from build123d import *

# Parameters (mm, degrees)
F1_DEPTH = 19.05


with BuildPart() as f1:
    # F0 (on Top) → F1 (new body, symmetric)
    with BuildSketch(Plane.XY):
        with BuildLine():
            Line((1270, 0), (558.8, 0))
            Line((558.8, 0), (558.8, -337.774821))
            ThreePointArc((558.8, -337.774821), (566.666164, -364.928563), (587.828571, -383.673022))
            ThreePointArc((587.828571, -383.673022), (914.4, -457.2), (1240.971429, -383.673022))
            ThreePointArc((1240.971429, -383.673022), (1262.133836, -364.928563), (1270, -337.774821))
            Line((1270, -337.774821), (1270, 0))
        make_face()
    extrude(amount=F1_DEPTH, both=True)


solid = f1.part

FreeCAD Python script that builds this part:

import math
import FreeCAD as App
import Part
import Sketcher

V = App.Vector
Q = App.Units.Quantity

doc = App.newDocument("Part")
body = doc.addObject("PartDesign::Body", "Body")

sketch1 = body.newObject("Sketcher::SketchObject", "Sketch")
sketch1.AttachmentSupport = (doc.getObject("XY_Plane"), [""])
sketch1.MapMode = "FlatFace"
sketch1.addGeometry([
    Part.LineSegment(V(1270, 0, 0), V(559, 0, 0)),
    Part.LineSegment(V(559, 0, 0), V(559, -338, 0)),
    Part.ArcOfCircle(Part.Circle(V(610, -338, 0), V(0, 0, 1), 51), math.radians(-180), math.radians(-115)),
    Part.ArcOfCircle(Part.Circle(V(914, 305, 0), V(0, 0, 1), 762), math.radians(-115), math.radians(-65)),
    Part.ArcOfCircle(Part.Circle(V(1219, -338, 0), V(0, 0, 1), 51), math.radians(-65), math.radians(0)),
    Part.LineSegment(V(1270, -338, 0), V(1270, 0, 0)),
], False)
sketch1.addConstraint([
    Sketcher.Constraint("Coincident", 0, 2, 1, 1),
    Sketcher.Constraint("Tangent", 1, 2, 2, 1),
    Sketcher.Constraint("Tangent", 2, 2, 3, 1),
    Sketcher.Constraint("Tangent", 3, 2, 4, 1),
    Sketcher.Constraint("Tangent", 4, 2, 5, 1),
    Sketcher.Constraint("Coincident", 5, 2, 0, 1),
    Sketcher.Constraint("Horizontal", 0),
    Sketcher.Constraint("Vertical", 1),
    Sketcher.Constraint("Vertical", 5),
    Sketcher.Constraint("Equal", 2, 4),
    Sketcher.Constraint("PointOnObject", 0, 2, -1),
    Sketcher.Constraint("Horizontal", 2, 3, 4, 3),
    Sketcher.Constraint("Radius", 2, Q("2 in")),
    Sketcher.Constraint("Radius", 3, Q("30.0000001 in")),
    Sketcher.Constraint("DistanceX", 0, 2, 0, 1, Q("28 in")),
    Sketcher.Constraint("DistanceX", -1, 1, 2, 3, Q("24 in")),
    Sketcher.Constraint("DistanceY", -1, 1, 3, 3, Q("12.0000001 in")),
])
pad1 = body.newObject("PartDesign::Pad", "Pad")
pad1.Profile = sketch1
pad1.Length = Q("1.5 in")
pad1.Midplane = True

doc.recompute()
